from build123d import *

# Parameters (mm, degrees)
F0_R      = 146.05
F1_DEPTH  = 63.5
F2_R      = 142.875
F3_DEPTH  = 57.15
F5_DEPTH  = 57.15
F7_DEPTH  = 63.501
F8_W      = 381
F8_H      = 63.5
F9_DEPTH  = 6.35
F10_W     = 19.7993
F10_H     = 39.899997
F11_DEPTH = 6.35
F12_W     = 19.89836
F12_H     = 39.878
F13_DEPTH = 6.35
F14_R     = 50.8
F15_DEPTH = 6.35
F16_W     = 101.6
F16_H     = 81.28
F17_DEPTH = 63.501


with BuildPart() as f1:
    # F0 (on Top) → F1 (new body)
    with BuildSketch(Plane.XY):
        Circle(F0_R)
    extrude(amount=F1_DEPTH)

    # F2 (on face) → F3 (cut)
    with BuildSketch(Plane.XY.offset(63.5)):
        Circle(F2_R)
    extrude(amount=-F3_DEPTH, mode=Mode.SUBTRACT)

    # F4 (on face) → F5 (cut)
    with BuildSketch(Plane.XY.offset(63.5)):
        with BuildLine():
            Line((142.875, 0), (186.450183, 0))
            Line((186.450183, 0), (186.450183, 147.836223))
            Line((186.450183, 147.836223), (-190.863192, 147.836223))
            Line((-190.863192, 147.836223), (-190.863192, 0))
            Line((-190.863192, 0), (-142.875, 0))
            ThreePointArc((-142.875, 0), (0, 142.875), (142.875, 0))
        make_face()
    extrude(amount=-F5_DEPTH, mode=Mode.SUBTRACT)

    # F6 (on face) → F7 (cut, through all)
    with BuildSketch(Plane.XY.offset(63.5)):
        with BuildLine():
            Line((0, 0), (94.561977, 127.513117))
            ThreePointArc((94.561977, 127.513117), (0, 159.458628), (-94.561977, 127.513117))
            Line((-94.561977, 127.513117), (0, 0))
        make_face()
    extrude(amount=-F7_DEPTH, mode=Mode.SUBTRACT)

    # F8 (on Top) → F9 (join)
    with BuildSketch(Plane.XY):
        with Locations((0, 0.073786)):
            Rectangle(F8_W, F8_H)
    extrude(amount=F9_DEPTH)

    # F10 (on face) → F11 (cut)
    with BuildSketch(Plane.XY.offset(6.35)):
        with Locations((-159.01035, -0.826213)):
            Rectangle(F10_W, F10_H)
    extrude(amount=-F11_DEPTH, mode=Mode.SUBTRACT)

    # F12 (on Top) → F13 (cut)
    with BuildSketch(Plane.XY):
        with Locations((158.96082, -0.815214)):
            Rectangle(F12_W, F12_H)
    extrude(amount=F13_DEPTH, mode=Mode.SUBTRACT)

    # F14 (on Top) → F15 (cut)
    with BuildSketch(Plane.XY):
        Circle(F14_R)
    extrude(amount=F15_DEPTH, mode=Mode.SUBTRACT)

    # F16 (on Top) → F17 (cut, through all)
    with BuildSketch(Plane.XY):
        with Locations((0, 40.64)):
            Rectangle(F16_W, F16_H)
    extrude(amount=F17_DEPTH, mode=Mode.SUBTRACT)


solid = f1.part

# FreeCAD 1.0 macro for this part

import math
import FreeCAD as App
import Part
import Sketcher

V = App.Vector
Q = App.Units.Quantity


def add_polygon(sketch, points):
    """Adds a closed chain of lines whose ends are joined by coincident constraints."""
    first, n = sketch.GeometryCount, len(points)
    for a, b in zip(points, points[1:] + points[:1]):
        sketch.addGeometry(Part.LineSegment(App.Vector(*a, 0), App.Vector(*b, 0)), False)
    for i in range(n):
        sketch.addConstraint(Sketcher.Constraint("Coincident", first + i, 2, first + (i + 1) % n, 1))

doc = App.newDocument("Part")
body = doc.addObject("PartDesign::Body", "Body")

# Sketch on XY plane
sketch1 = doc.addObject("Sketcher::SketchObject", "Sketch")
body.addObject(sketch1)
sketch1.AttachmentSupport = (doc.XY_Plane, [""])
sketch1.MapMode = "FlatFace"
sketch1.addGeometry(Part.Circle(V(0, 0, 0), V(0, 0, 1), 146), False)
sketch1.addConstraint([
    Sketcher.Constraint("Coincident", 0, 3, -1, 1),
    Sketcher.Constraint("Diameter", 0, Q("11.5 in")),
])
pad1 = doc.addObject("PartDesign::Pad", "Pad")
body.addObject(pad1)
pad1.Profile = sketch1
pad1.Length = Q("2.5 in")

# Sketch on XY plane
sketch2 = doc.addObject("Sketcher::SketchObject", "Sketch001")
body.addObject(sketch2)
sketch2.AttachmentSupport = (doc.XY_Plane, [""])
sketch2.MapMode = "FlatFace"
sketch2.AttachmentOffset = App.Placement(V(0, 0, 2.5 * 25.4), App.Rotation())
sketch2.addGeometry(Part.Circle(V(0, 0, 0), V(0, 0, 1), 143), False)
sketch2.addConstraint([
    Sketcher.Constraint("Coincident", 0, 3, -1, 1),
    Sketcher.Constraint("Diameter", 0, Q("11.25 in")),
])
pocket1 = doc.addObject("PartDesign::Pocket", "Pocket")
body.addObject(pocket1)
pocket1.Profile = sketch2
pocket1.Length = Q("2.25 in")

# Sketch on XY plane
sketch3 = doc.addObject("Sketcher::SketchObject", "Sketch002")
body.addObject(sketch3)
sketch3.AttachmentSupport = (doc.XY_Plane, [""])
sketch3.MapMode = "FlatFace"
sketch3.AttachmentOffset = App.Placement(V(0, 0, 2.5 * 25.4), App.Rotation())
sketch3.addGeometry([
    Part.LineSegment(V(143, 0, 0), V(186, 0, 0)),  # 0
    Part.LineSegment(V(186, 0, 0), V(186, 148, 0)),  # 1
    Part.LineSegment(V(186, 148, 0), V(-191, 148, 0)),  # 2
    Part.LineSegment(V(-191, 148, 0), V(-191, 0, 0)),  # 3
    Part.LineSegment(V(-191, 0, 0), V(-143, 0, 0)),  # 4
    Part.ArcOfCircle(Part.Circle(V(0, 0, 0), V(0, 0, 1), 143), math.radians(0), math.radians(180)),  # 5
], False)
sketch3.addConstraint([
    Sketcher.Constraint("Coincident", 0, 2, 1, 1),
    Sketcher.Constraint("Coincident", 1, 2, 2, 1),
    Sketcher.Constraint("Coincident", 2, 2, 3, 1),
    Sketcher.Constraint("Coincident", 3, 2, 4, 1),
    Sketcher.Constraint("Coincident", 4, 2, 5, 2),
    Sketcher.Constraint("Coincident", 5, 1, 0, 1),
    Sketcher.Constraint("Horizontal", 0),
    Sketcher.Constraint("Vertical", 1),
    Sketcher.Constraint("Horizontal", 2),
    Sketcher.Constraint("Vertical", 3),
    Sketcher.Constraint("Horizontal", 4),
    Sketcher.Constraint("Coincident", 5, 3, -1, 1),
    Sketcher.Constraint("PointOnObject", 0, 2, -1),
    Sketcher.Constraint("PointOnObject", 3, 2, -1),
    Sketcher.Constraint("Radius", 5, Q("5.625 in")),
    Sketcher.Constraint("DistanceX", 4, 1, 4, 2, Q("47.988192 mm")),
    Sketcher.Constraint("DistanceX", 0, 1, 0, 2, Q("43.575183 mm")),
    Sketcher.Constraint("DistanceY", 1, 1, 1, 2, Q("147.836223 mm")),
])
pocket2 = doc.addObject("PartDesign::Pocket", "Pocket001")
body.addObject(pocket2)
pocket2.Profile = sketch3
pocket2.Length = Q("2.25 in")

# Sketch on XY plane
sketch4 = doc.addObject("Sketcher::SketchObject", "Sketch003")
body.addObject(sketch4)
sketch4.AttachmentSupport = (doc.XY_Plane, [""])
sketch4.MapMode = "FlatFace"
sketch4.AttachmentOffset = App.Placement(V(0, 0, 2.5 * 25.4), App.Rotation())
sketch4.addGeometry([
    Part.LineSegment(V(0, 0, 0), V(95, 128, 0)),
    Part.ArcOfCircle(Part.Circle(V(0, 4, 0), V(0, 0, 1), 156), math.radians(53), math.radians(127)),
    Part.LineSegment(V(-95, 128, 0), V(0, 0, 0)),
], False)
sketch4.addConstraint([
    Sketcher.Constraint("Coincident", 0, 2, 1, 1),
    Sketcher.Constraint("Coincident", 1, 2, 2, 1),
    Sketcher.Constraint("Coincident", 2, 2, 0, 1),
    Sketcher.Constraint("Coincident", 2, 2, -1, 1),
    Sketcher.Constraint("Symmetric", 0, 2, 1, 2, -2),
    Sketcher.Constraint("Distance", 0, Q("6.25 in")),
    Sketcher.Constraint("Radius", 1, Q("155.929313 mm")),
    Sketcher.Constraint("DistanceY", 1, 3, 0, 2, Q("123.983802 mm")),
])
pocket3 = doc.addObject("PartDesign::Pocket", "Pocket002")
body.addObject(pocket3)
pocket3.Profile = sketch4
pocket3.Type = "ThroughAll"

# Sketch on XY plane
sketch5 = doc.addObject("Sketcher::SketchObject", "Sketch004")
body.addObject(sketch5)
sketch5.AttachmentSupport = (doc.XY_Plane, [""])
sketch5.MapMode = "FlatFace"
add_polygon(sketch5, [(-190, 32), (-190, -32), (190, -32), (190, 32)])  # lines 0-3
sketch5.addConstraint([
    Sketcher.Constraint("Vertical", 0),
    Sketcher.Constraint("Horizontal", 1),
    Sketcher.Constraint("Vertical", 2),
    Sketcher.Constraint("Horizontal", 3),
    Sketcher.Constraint("DistanceX", 1, 1, 1, 2, Q("15 in")),
    Sketcher.Constraint("DistanceY", 0, 2, 0, 1, Q("2.5 in")),
    Sketcher.Constraint("DistanceX", 0, 2, -1, 1, Q("7.5 in")),
    Sketcher.Constraint("DistanceY", 0, 2, -1, 1, Q("31.676214 mm")),
])
pad2 = doc.addObject("PartDesign::Pad", "Pad001")
body.addObject(pad2)
pad2.Profile = sketch5
pad2.Length = Q("0.25 in")

# Sketch on XY plane
sketch6 = doc.addObject("Sketcher::SketchObject", "Sketch005")
body.addObject(sketch6)
sketch6.AttachmentSupport = (doc.XY_Plane, [""])
sketch6.MapMode = "FlatFace"
sketch6.AttachmentOffset = App.Placement(V(0, 0, 0.25 * 25.4), App.Rotation())
add_polygon(sketch6, [(-169, 19), (-169, -21), (-149, -21), (-149, 19)])  # lines 0-3
sketch6.addConstraint([
    Sketcher.Constraint("Vertical", 0),
    Sketcher.Constraint("Horizontal", 1),
    Sketcher.Constraint("Vertical", 2),
    Sketcher.Constraint("Horizontal", 3),
    Sketcher.Constraint("DistanceX", 0, 2, -1, 1, Q("6.65 in")),
    Sketcher.Constraint("DistanceX", 1, 1, 1, 2, Q("0.7795 in")),
    Sketcher.Constraint("DistanceY", 0, 2, 0, 1, Q("39.899997 mm")),
    Sketcher.Constraint("DistanceY", 0, 2, -1, 1, Q("20.776211 mm")),
])
pocket4 = doc.addObject("PartDesign::Pocket", "Pocket003")
body.addObject(pocket4)
pocket4.Profile = sketch6
pocket4.Length = Q("0.25 in")

# Sketch on XY plane
sketch7 = doc.addObject("Sketcher::SketchObject", "Sketch006")
body.addObject(sketch7)
sketch7.AttachmentSupport = (doc.XY_Plane, [""])
sketch7.MapMode = "FlatFace"
add_polygon(sketch7, [(149, 19), (149, -21), (169, -21), (169, 19)])  # lines 0-3
sketch7.addConstraint([
    Sketcher.Constraint("Vertical", 0),
    Sketcher.Constraint("Horizontal", 1),
    Sketcher.Constraint("Vertical", 2),
    Sketcher.Constraint("Horizontal", 3),
    Sketcher.Constraint("DistanceY", 0, 2, 0, 1, Q("1.57 in")),
    Sketcher.Constraint("DistanceX", -1, 1, 1, 2, Q("6.65 in")),
    Sketcher.Constraint("DistanceX", 1, 1, 1, 2, Q("0.7834 in")),
    Sketcher.Constraint("DistanceY", 0, 2, -1, 1, Q("20.754214 mm")),
])
pocket5 = doc.addObject("PartDesign::Pocket", "Pocket004")
body.addObject(pocket5)
pocket5.Profile = sketch7
pocket5.Length = Q("0.25 in")
pocket5.Reversed = True

# Sketch on XY plane
sketch8 = doc.addObject("Sketcher::SketchObject", "Sketch007")
body.addObject(sketch8)
sketch8.AttachmentSupport = (doc.XY_Plane, [""])
sketch8.MapMode = "FlatFace"
sketch8.addGeometry(Part.Circle(V(0, 0, 0), V(0, 0, 1), 51), False)
sketch8.addConstraint([
    Sketcher.Constraint("Coincident", 0, 3, -1, 1),
    Sketcher.Constraint("Diameter", 0, Q("4 in")),
])
pocket6 = doc.addObject("PartDesign::Pocket", "Pocket005")
body.addObject(pocket6)
pocket6.Profile = sketch8
pocket6.Length = Q("0.25 in")
pocket6.Reversed = True

# Sketch on XY plane
sketch9 = doc.addObject("Sketcher::SketchObject", "Sketch008")
body.addObject(sketch9)
sketch9.AttachmentSupport = (doc.XY_Plane, [""])
sketch9.MapMode = "FlatFace"
add_polygon(sketch9, [(-51, 81), (-51, 0), (51, 0), (51, 81)])  # lines 0-3
sketch9.addConstraint([
    Sketcher.Constraint("Vertical", 0),
    Sketcher.Constraint("Horizontal", 1),
    Sketcher.Constraint("Vertical", 2),
    Sketcher.Constraint("Horizontal", 3),
    Sketcher.Constraint("Symmetric", 0, 2, 1, 2, -1, 1),
    Sketcher.Constraint("DistanceX", 1, 1, 1, 2, Q("4 in")),
    Sketcher.Constraint("DistanceY", 0, 2, 0, 1, Q("3.2 in")),
])
pocket7 = doc.addObject("PartDesign::Pocket", "Pocket006")
body.addObject(pocket7)
pocket7.Profile = sketch9
pocket7.Type = "ThroughAll"
pocket7.Reversed = True

doc.recompute()
